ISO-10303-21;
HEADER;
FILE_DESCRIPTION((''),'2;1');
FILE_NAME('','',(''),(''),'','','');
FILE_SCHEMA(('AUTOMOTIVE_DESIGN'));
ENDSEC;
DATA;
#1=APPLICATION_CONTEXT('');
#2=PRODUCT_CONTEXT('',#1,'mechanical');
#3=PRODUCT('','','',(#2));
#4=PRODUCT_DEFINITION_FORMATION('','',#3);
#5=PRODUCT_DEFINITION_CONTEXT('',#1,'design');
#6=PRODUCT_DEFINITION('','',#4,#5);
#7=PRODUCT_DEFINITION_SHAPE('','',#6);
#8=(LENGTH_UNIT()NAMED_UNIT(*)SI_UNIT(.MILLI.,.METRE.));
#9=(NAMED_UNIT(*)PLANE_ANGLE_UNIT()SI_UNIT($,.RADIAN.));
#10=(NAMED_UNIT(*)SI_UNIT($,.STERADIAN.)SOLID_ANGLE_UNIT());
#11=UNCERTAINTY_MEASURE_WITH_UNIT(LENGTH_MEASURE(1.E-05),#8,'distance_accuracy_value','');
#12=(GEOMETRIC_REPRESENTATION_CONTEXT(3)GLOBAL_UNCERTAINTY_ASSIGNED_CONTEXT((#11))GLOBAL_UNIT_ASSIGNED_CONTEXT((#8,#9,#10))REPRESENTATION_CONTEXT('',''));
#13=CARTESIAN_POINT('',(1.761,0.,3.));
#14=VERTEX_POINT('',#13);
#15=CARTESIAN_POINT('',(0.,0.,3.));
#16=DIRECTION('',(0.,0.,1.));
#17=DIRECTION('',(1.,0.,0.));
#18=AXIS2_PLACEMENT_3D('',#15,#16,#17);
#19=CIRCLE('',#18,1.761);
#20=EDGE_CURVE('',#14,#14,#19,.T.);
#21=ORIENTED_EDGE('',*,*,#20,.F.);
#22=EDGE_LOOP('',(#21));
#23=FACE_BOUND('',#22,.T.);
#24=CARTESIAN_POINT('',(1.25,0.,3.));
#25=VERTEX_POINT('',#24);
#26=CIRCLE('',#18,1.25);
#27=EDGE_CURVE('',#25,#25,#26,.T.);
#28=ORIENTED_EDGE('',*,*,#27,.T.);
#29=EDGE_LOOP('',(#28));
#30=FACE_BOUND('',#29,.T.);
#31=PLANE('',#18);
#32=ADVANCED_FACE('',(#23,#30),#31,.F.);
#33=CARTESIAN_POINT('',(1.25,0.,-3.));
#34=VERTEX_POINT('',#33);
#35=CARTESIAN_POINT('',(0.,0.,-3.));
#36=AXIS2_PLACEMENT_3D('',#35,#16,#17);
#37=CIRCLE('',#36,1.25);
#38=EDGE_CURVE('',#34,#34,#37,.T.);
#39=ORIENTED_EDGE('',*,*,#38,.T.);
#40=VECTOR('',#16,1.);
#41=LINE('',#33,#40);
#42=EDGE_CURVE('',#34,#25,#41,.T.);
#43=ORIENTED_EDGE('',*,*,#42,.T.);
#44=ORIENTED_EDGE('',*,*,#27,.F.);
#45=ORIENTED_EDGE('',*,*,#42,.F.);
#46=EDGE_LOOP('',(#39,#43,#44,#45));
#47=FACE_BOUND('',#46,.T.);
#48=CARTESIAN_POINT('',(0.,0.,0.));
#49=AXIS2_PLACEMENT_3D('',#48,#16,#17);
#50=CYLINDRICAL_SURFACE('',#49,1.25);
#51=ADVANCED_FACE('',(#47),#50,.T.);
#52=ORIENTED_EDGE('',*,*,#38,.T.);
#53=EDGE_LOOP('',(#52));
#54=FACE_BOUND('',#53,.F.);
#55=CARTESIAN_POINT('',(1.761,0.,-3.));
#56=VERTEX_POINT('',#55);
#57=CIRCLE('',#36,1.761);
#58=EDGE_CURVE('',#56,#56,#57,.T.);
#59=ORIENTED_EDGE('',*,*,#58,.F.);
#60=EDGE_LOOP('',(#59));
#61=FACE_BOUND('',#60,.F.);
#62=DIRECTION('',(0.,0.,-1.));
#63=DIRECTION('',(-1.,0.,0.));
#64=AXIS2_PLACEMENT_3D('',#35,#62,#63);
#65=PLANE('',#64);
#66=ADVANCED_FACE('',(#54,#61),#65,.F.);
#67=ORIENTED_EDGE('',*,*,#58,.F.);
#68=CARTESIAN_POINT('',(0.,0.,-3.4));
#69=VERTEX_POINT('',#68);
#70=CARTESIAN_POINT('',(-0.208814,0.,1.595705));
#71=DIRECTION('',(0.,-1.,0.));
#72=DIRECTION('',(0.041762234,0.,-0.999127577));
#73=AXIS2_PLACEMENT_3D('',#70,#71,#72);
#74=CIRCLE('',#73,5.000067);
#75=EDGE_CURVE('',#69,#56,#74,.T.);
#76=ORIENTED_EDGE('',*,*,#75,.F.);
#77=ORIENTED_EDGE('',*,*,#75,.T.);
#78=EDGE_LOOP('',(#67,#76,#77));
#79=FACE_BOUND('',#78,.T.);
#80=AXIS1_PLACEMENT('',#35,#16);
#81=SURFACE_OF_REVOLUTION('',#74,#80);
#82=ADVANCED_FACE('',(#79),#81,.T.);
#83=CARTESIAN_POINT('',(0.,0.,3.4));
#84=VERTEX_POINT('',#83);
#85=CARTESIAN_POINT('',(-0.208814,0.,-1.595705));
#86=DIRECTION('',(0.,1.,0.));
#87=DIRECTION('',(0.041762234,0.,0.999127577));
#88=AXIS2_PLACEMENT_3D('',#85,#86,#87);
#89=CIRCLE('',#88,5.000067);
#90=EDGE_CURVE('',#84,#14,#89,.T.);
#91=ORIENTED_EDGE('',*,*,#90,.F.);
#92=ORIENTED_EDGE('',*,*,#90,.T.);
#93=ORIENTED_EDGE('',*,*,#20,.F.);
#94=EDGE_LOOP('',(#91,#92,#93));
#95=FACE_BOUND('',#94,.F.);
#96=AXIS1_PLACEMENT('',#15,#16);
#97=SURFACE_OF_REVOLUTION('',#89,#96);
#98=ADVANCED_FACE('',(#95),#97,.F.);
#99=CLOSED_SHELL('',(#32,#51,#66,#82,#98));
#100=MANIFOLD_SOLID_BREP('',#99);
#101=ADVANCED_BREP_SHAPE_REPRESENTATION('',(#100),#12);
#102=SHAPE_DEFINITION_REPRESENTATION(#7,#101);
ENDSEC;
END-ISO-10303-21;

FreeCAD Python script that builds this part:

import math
import FreeCAD as App
import Part
import Sketcher

V = App.Vector

doc = App.newDocument("Part")
body = doc.addObject("PartDesign::Body", "Body")

# Sketch on XY plane
sketch1 = doc.addObject("Sketcher::SketchObject", "Sketch")
body.addObject(sketch1)
sketch1.AttachmentSupport = (doc.XY_Plane, [""])
sketch1.MapMode = "FlatFace"
sketch1.addGeometry(Part.Circle(V(0, 0, 0), V(0, 0, 1), 1.2), False)
sketch1.addConstraint([
    Sketcher.Constraint("Coincident", 0, 3, -1, 1),
    Sketcher.Constraint("Diameter", 0, 2.5),
])
pad1 = doc.addObject("PartDesign::Pad", "Pad")
body.addObject(pad1)
pad1.Profile = sketch1
pad1.Length = 6
pad1.Midplane = True

# Sketch on XZ plane
sketch2 = doc.addObject("Sketcher::SketchObject", "Sketch001")
body.addObject(sketch2)
sketch2.AttachmentSupport = (doc.XZ_Plane, [""])
sketch2.MapMode = "FlatFace"
sketch2.addGeometry([
    Part.LineSegment(V(1.76, 3, 0), V(0, 3, 0)),
    Part.LineSegment(V(0, 3, 0), V(0, 3.4, 0)),
    Part.ArcOfCircle(Part.Circle(V(-0.21, -1.6, 0), V(0, 0, 1), 5), math.radians(67), math.radians(88)),
], False)
sketch2.addConstraint([
    Sketcher.Constraint("Coincident", 0, 2, 1, 1),
    Sketcher.Constraint("Coincident", 1, 2, 2, 2),
    Sketcher.Constraint("Coincident", 2, 1, 0, 1),
    Sketcher.Constraint("Horizontal", 0),
    Sketcher.Constraint("Vertical", 1),
    Sketcher.Constraint("PointOnObject", 0, 2, -2),
    Sketcher.Constraint("Radius", 2, 5.0),
    Sketcher.Constraint("DistanceY", 1, 1, 1, 2, 0.4),
    Sketcher.Constraint("DistanceY", -1, 1, 0, 2, 3.0),
    Sketcher.Constraint("DistanceX", 0, 2, 0, 1, 1.761),
])
revolution = doc.addObject("PartDesign::Revolution", "Revolution")
body.addObject(revolution)
revolution.Profile = sketch2
revolution.ReferenceAxis = (sketch2, ["V_Axis"])
revolution.Angle = 360
doc.recompute()

mirrored = doc.addObject("PartDesign::Mirrored", "Mirrored")
body.addObject(mirrored)
mirrored.Originals = [revolution]
mirrored.MirrorPlane = (doc.XY_Plane, [""])
body.Tip = mirrored

doc.recompute()
